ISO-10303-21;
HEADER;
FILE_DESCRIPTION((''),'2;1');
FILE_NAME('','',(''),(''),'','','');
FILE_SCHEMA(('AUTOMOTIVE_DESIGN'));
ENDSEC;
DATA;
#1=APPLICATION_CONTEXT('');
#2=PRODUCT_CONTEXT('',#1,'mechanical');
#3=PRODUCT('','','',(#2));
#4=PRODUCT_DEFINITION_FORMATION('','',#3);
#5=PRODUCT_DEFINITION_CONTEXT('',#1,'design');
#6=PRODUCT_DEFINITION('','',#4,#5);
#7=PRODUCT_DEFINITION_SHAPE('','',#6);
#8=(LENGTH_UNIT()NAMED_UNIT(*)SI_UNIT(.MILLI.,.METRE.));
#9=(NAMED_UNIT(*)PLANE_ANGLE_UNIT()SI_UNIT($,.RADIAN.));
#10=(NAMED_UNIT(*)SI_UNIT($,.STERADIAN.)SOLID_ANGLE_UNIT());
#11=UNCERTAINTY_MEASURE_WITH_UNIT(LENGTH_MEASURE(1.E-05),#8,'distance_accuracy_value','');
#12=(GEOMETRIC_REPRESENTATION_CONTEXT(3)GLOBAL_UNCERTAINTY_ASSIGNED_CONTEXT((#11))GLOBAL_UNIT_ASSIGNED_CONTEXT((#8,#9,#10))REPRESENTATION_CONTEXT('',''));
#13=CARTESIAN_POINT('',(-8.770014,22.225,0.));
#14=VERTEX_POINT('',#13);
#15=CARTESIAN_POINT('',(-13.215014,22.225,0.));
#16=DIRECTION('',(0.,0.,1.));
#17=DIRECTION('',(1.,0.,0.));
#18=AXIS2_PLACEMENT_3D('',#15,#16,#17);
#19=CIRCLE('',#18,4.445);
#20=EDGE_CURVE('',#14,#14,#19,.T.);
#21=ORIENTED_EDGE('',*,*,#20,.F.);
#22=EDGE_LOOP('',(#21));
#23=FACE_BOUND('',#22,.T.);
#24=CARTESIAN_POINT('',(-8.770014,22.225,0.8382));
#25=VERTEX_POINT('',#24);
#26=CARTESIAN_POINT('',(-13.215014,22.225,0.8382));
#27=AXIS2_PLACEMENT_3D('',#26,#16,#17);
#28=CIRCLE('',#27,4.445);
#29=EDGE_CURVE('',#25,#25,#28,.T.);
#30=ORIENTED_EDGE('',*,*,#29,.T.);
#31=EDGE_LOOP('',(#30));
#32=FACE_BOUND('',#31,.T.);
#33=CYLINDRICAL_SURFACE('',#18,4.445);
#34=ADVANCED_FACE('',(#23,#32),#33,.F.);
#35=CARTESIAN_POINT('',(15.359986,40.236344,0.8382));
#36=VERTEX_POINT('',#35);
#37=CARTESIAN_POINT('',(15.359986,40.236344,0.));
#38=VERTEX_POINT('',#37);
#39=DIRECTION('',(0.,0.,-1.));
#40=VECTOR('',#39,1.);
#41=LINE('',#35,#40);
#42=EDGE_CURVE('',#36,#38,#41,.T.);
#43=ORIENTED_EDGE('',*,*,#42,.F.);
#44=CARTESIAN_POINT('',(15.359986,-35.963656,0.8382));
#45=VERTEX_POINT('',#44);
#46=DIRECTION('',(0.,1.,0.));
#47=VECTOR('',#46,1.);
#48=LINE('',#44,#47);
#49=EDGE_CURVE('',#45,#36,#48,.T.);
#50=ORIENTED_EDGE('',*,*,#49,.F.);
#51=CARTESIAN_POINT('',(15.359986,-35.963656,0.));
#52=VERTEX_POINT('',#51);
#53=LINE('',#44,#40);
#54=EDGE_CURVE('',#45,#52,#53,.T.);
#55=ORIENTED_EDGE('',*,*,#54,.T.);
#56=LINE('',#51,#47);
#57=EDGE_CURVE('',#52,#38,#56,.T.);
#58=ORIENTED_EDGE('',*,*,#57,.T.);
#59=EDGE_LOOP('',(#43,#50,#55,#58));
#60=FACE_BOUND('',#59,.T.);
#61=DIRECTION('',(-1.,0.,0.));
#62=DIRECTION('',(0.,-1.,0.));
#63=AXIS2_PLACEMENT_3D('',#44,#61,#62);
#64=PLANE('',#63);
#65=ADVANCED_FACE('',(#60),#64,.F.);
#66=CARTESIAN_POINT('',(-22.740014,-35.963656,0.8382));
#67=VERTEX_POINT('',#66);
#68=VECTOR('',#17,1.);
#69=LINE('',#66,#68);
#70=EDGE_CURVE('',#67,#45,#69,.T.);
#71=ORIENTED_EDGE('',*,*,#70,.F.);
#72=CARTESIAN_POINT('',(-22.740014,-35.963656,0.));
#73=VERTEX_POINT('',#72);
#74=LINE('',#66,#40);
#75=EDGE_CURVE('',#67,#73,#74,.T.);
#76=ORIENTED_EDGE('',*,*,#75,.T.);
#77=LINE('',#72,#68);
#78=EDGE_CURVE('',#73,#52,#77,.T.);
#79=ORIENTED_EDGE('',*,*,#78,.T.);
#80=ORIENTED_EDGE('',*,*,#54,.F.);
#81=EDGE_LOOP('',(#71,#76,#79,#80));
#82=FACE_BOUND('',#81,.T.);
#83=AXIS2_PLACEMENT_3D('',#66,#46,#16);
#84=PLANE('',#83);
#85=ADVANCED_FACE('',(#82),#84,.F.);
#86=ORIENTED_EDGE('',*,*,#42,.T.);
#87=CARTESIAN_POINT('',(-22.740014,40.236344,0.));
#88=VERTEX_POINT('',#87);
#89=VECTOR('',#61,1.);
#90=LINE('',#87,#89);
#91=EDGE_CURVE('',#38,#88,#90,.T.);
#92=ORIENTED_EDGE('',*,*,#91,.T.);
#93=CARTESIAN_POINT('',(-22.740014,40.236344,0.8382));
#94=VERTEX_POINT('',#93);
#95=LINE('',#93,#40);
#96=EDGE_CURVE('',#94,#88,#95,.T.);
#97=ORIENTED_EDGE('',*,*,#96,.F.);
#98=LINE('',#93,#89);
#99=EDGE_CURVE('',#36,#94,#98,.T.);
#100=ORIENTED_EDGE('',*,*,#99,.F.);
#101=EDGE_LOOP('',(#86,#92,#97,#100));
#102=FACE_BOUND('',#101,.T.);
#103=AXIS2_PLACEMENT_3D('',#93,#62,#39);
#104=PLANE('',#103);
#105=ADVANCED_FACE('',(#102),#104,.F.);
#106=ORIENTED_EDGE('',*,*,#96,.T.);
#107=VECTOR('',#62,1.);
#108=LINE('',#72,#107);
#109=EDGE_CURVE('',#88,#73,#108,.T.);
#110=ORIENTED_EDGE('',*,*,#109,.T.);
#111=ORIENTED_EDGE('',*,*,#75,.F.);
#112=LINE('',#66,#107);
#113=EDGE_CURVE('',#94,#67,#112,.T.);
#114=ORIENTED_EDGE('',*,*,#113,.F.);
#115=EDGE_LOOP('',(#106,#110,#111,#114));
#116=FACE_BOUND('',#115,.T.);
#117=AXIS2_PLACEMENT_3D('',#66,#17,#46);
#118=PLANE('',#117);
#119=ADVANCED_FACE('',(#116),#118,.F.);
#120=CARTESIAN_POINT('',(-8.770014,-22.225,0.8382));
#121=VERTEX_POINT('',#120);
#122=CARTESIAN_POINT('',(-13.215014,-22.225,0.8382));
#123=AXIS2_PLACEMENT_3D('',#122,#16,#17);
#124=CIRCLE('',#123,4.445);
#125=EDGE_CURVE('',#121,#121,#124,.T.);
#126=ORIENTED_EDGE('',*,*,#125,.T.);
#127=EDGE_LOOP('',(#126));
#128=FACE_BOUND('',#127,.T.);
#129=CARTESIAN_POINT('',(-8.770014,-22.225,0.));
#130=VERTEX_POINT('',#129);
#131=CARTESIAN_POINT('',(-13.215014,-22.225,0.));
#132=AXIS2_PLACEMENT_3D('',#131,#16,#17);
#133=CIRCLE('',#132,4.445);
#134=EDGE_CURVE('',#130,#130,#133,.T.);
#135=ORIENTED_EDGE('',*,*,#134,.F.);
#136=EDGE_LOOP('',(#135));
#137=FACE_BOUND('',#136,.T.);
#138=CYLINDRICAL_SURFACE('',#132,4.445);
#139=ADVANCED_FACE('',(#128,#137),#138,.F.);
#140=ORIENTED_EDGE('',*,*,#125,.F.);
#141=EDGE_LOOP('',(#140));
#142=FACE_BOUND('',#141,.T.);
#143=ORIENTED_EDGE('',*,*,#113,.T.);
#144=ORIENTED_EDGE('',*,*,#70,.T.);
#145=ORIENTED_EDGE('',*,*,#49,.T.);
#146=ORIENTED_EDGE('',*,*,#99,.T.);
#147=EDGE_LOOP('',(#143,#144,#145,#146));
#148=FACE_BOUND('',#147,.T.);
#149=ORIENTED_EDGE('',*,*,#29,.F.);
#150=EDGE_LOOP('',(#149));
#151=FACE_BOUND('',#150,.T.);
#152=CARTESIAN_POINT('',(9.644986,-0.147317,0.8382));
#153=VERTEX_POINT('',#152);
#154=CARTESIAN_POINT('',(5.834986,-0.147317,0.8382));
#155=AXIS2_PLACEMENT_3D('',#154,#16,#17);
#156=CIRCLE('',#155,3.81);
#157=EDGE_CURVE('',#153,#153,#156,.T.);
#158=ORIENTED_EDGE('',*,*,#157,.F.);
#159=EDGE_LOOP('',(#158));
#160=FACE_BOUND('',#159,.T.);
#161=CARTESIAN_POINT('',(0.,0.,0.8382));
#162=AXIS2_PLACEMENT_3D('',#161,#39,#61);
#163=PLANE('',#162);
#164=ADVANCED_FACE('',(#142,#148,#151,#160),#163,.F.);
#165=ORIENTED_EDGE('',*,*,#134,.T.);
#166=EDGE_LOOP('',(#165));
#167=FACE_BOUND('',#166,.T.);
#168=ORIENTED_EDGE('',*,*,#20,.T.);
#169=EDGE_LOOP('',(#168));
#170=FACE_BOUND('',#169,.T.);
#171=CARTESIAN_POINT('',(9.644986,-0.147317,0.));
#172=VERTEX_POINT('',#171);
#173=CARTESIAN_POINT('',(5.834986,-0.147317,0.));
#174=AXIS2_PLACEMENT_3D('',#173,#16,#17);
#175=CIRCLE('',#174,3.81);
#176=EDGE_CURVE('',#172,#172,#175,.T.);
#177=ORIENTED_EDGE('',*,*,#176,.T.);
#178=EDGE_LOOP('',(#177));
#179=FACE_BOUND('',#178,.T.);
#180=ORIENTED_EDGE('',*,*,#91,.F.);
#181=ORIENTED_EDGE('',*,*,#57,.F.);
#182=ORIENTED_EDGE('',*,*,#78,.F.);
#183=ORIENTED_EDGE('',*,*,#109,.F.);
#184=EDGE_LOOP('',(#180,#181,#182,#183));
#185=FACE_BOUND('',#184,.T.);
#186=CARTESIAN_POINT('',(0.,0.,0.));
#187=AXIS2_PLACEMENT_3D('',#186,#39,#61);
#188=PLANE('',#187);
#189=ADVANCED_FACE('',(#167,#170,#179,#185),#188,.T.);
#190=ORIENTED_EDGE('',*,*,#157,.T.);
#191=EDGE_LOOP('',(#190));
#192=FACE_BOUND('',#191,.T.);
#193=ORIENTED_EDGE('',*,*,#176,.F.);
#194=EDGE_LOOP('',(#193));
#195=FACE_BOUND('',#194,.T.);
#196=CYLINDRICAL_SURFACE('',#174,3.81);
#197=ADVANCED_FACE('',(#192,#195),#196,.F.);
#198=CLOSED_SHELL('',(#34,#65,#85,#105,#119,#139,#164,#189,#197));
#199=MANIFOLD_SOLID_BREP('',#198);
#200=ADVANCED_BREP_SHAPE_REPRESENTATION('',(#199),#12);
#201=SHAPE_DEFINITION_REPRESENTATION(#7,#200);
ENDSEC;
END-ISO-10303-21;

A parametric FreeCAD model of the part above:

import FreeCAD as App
import Part
import Sketcher
from FreeCAD import Vector
Q = App.Units.Quantity


def add_polygon(sketch, points):
    """Adds a closed chain of lines whose ends are joined by coincident constraints."""
    first, n = sketch.GeometryCount, len(points)
    for a, b in zip(points, points[1:] + points[:1]):
        sketch.addGeometry(Part.LineSegment(App.Vector(*a, 0), App.Vector(*b, 0)), False)
    for i in range(n):
        sketch.addConstraint(Sketcher.Constraint("Coincident", first + i, 2, first + (i + 1) % n, 1))

doc = App.newDocument("Part")
body = doc.addObject("PartDesign::Body", "Body")

# Sketch on XY plane
sketch1 = body.newObject("Sketcher::SketchObject", "Sketch")
sketch1.AttachmentSupport = (doc.getObject("XY_Plane"), [""])
sketch1.MapMode = "FlatFace"
add_polygon(sketch1, [(-23, 40), (-23, -36), (15, -36), (15, 40)])  # lines 0-3
sketch1.addConstraint([
    Sketcher.Constraint("Vertical", 0),
    Sketcher.Constraint("Horizontal", 1),
    Sketcher.Constraint("Vertical", 2),
    Sketcher.Constraint("Horizontal", 3),
    Sketcher.Constraint("DistanceY", 0, 2, 0, 1, Q("3 in")),
    Sketcher.Constraint("DistanceX", 1, 1, 1, 2, Q("1.5 in")),
    Sketcher.Constraint("DistanceX", 0, 2, -1, 1, Q("22.740014 mm")),
    Sketcher.Constraint("DistanceY", 0, 2, -1, 1, Q("35.963656 mm")),
])
pad1 = body.newObject("PartDesign::Pad", "Pad")
pad1.Profile = sketch1
pad1.Length = Q("0.033 in")

# Sketch on XY plane
sketch2 = body.newObject("Sketcher::SketchObject", "Sketch001")
sketch2.AttachmentSupport = (doc.getObject("XY_Plane"), [""])
sketch2.MapMode = "FlatFace"
sketch2.AttachmentOffset = App.Placement(Vector(0, 0, 0.033 * 25.4), App.Rotation())
sketch2.addGeometry([
    Part.Circle(Vector(5.8, -0.1, 0), Vector(0, 0, 1), 3.8),
    Part.Circle(Vector(-13.2, 22.2, 0), Vector(0, 0, 1), 4.4),
    Part.Circle(Vector(-13.2, -22.2, 0), Vector(0, 0, 1), 4.4),
], False)
sketch2.addConstraint([
    Sketcher.Constraint("Equal", 1, 2),
    Sketcher.Constraint("Symmetric", 1, 3, 2, 3, -1),
    Sketcher.Constraint("Diameter", 0, Q("0.3 in")),
    Sketcher.Constraint("Diameter", 1, Q("0.35 in")),
    Sketcher.Constraint("DistanceX", 1, 3, 0, 3, Q("0.75 in")),
    Sketcher.Constraint("DistanceY", 2, 3, 1, 3, Q("1.75 in")),
    Sketcher.Constraint("DistanceY", 0, 3, -1, 1, Q("0.0057999 in")),
    Sketcher.Constraint("DistanceX", -1, 1, 0, 3, Q("5.834986 mm")),
])
pocket1 = body.newObject("PartDesign::Pocket", "Pocket")
pocket1.Profile = sketch2
pocket1.Type = "ThroughAll"

doc.recompute()
